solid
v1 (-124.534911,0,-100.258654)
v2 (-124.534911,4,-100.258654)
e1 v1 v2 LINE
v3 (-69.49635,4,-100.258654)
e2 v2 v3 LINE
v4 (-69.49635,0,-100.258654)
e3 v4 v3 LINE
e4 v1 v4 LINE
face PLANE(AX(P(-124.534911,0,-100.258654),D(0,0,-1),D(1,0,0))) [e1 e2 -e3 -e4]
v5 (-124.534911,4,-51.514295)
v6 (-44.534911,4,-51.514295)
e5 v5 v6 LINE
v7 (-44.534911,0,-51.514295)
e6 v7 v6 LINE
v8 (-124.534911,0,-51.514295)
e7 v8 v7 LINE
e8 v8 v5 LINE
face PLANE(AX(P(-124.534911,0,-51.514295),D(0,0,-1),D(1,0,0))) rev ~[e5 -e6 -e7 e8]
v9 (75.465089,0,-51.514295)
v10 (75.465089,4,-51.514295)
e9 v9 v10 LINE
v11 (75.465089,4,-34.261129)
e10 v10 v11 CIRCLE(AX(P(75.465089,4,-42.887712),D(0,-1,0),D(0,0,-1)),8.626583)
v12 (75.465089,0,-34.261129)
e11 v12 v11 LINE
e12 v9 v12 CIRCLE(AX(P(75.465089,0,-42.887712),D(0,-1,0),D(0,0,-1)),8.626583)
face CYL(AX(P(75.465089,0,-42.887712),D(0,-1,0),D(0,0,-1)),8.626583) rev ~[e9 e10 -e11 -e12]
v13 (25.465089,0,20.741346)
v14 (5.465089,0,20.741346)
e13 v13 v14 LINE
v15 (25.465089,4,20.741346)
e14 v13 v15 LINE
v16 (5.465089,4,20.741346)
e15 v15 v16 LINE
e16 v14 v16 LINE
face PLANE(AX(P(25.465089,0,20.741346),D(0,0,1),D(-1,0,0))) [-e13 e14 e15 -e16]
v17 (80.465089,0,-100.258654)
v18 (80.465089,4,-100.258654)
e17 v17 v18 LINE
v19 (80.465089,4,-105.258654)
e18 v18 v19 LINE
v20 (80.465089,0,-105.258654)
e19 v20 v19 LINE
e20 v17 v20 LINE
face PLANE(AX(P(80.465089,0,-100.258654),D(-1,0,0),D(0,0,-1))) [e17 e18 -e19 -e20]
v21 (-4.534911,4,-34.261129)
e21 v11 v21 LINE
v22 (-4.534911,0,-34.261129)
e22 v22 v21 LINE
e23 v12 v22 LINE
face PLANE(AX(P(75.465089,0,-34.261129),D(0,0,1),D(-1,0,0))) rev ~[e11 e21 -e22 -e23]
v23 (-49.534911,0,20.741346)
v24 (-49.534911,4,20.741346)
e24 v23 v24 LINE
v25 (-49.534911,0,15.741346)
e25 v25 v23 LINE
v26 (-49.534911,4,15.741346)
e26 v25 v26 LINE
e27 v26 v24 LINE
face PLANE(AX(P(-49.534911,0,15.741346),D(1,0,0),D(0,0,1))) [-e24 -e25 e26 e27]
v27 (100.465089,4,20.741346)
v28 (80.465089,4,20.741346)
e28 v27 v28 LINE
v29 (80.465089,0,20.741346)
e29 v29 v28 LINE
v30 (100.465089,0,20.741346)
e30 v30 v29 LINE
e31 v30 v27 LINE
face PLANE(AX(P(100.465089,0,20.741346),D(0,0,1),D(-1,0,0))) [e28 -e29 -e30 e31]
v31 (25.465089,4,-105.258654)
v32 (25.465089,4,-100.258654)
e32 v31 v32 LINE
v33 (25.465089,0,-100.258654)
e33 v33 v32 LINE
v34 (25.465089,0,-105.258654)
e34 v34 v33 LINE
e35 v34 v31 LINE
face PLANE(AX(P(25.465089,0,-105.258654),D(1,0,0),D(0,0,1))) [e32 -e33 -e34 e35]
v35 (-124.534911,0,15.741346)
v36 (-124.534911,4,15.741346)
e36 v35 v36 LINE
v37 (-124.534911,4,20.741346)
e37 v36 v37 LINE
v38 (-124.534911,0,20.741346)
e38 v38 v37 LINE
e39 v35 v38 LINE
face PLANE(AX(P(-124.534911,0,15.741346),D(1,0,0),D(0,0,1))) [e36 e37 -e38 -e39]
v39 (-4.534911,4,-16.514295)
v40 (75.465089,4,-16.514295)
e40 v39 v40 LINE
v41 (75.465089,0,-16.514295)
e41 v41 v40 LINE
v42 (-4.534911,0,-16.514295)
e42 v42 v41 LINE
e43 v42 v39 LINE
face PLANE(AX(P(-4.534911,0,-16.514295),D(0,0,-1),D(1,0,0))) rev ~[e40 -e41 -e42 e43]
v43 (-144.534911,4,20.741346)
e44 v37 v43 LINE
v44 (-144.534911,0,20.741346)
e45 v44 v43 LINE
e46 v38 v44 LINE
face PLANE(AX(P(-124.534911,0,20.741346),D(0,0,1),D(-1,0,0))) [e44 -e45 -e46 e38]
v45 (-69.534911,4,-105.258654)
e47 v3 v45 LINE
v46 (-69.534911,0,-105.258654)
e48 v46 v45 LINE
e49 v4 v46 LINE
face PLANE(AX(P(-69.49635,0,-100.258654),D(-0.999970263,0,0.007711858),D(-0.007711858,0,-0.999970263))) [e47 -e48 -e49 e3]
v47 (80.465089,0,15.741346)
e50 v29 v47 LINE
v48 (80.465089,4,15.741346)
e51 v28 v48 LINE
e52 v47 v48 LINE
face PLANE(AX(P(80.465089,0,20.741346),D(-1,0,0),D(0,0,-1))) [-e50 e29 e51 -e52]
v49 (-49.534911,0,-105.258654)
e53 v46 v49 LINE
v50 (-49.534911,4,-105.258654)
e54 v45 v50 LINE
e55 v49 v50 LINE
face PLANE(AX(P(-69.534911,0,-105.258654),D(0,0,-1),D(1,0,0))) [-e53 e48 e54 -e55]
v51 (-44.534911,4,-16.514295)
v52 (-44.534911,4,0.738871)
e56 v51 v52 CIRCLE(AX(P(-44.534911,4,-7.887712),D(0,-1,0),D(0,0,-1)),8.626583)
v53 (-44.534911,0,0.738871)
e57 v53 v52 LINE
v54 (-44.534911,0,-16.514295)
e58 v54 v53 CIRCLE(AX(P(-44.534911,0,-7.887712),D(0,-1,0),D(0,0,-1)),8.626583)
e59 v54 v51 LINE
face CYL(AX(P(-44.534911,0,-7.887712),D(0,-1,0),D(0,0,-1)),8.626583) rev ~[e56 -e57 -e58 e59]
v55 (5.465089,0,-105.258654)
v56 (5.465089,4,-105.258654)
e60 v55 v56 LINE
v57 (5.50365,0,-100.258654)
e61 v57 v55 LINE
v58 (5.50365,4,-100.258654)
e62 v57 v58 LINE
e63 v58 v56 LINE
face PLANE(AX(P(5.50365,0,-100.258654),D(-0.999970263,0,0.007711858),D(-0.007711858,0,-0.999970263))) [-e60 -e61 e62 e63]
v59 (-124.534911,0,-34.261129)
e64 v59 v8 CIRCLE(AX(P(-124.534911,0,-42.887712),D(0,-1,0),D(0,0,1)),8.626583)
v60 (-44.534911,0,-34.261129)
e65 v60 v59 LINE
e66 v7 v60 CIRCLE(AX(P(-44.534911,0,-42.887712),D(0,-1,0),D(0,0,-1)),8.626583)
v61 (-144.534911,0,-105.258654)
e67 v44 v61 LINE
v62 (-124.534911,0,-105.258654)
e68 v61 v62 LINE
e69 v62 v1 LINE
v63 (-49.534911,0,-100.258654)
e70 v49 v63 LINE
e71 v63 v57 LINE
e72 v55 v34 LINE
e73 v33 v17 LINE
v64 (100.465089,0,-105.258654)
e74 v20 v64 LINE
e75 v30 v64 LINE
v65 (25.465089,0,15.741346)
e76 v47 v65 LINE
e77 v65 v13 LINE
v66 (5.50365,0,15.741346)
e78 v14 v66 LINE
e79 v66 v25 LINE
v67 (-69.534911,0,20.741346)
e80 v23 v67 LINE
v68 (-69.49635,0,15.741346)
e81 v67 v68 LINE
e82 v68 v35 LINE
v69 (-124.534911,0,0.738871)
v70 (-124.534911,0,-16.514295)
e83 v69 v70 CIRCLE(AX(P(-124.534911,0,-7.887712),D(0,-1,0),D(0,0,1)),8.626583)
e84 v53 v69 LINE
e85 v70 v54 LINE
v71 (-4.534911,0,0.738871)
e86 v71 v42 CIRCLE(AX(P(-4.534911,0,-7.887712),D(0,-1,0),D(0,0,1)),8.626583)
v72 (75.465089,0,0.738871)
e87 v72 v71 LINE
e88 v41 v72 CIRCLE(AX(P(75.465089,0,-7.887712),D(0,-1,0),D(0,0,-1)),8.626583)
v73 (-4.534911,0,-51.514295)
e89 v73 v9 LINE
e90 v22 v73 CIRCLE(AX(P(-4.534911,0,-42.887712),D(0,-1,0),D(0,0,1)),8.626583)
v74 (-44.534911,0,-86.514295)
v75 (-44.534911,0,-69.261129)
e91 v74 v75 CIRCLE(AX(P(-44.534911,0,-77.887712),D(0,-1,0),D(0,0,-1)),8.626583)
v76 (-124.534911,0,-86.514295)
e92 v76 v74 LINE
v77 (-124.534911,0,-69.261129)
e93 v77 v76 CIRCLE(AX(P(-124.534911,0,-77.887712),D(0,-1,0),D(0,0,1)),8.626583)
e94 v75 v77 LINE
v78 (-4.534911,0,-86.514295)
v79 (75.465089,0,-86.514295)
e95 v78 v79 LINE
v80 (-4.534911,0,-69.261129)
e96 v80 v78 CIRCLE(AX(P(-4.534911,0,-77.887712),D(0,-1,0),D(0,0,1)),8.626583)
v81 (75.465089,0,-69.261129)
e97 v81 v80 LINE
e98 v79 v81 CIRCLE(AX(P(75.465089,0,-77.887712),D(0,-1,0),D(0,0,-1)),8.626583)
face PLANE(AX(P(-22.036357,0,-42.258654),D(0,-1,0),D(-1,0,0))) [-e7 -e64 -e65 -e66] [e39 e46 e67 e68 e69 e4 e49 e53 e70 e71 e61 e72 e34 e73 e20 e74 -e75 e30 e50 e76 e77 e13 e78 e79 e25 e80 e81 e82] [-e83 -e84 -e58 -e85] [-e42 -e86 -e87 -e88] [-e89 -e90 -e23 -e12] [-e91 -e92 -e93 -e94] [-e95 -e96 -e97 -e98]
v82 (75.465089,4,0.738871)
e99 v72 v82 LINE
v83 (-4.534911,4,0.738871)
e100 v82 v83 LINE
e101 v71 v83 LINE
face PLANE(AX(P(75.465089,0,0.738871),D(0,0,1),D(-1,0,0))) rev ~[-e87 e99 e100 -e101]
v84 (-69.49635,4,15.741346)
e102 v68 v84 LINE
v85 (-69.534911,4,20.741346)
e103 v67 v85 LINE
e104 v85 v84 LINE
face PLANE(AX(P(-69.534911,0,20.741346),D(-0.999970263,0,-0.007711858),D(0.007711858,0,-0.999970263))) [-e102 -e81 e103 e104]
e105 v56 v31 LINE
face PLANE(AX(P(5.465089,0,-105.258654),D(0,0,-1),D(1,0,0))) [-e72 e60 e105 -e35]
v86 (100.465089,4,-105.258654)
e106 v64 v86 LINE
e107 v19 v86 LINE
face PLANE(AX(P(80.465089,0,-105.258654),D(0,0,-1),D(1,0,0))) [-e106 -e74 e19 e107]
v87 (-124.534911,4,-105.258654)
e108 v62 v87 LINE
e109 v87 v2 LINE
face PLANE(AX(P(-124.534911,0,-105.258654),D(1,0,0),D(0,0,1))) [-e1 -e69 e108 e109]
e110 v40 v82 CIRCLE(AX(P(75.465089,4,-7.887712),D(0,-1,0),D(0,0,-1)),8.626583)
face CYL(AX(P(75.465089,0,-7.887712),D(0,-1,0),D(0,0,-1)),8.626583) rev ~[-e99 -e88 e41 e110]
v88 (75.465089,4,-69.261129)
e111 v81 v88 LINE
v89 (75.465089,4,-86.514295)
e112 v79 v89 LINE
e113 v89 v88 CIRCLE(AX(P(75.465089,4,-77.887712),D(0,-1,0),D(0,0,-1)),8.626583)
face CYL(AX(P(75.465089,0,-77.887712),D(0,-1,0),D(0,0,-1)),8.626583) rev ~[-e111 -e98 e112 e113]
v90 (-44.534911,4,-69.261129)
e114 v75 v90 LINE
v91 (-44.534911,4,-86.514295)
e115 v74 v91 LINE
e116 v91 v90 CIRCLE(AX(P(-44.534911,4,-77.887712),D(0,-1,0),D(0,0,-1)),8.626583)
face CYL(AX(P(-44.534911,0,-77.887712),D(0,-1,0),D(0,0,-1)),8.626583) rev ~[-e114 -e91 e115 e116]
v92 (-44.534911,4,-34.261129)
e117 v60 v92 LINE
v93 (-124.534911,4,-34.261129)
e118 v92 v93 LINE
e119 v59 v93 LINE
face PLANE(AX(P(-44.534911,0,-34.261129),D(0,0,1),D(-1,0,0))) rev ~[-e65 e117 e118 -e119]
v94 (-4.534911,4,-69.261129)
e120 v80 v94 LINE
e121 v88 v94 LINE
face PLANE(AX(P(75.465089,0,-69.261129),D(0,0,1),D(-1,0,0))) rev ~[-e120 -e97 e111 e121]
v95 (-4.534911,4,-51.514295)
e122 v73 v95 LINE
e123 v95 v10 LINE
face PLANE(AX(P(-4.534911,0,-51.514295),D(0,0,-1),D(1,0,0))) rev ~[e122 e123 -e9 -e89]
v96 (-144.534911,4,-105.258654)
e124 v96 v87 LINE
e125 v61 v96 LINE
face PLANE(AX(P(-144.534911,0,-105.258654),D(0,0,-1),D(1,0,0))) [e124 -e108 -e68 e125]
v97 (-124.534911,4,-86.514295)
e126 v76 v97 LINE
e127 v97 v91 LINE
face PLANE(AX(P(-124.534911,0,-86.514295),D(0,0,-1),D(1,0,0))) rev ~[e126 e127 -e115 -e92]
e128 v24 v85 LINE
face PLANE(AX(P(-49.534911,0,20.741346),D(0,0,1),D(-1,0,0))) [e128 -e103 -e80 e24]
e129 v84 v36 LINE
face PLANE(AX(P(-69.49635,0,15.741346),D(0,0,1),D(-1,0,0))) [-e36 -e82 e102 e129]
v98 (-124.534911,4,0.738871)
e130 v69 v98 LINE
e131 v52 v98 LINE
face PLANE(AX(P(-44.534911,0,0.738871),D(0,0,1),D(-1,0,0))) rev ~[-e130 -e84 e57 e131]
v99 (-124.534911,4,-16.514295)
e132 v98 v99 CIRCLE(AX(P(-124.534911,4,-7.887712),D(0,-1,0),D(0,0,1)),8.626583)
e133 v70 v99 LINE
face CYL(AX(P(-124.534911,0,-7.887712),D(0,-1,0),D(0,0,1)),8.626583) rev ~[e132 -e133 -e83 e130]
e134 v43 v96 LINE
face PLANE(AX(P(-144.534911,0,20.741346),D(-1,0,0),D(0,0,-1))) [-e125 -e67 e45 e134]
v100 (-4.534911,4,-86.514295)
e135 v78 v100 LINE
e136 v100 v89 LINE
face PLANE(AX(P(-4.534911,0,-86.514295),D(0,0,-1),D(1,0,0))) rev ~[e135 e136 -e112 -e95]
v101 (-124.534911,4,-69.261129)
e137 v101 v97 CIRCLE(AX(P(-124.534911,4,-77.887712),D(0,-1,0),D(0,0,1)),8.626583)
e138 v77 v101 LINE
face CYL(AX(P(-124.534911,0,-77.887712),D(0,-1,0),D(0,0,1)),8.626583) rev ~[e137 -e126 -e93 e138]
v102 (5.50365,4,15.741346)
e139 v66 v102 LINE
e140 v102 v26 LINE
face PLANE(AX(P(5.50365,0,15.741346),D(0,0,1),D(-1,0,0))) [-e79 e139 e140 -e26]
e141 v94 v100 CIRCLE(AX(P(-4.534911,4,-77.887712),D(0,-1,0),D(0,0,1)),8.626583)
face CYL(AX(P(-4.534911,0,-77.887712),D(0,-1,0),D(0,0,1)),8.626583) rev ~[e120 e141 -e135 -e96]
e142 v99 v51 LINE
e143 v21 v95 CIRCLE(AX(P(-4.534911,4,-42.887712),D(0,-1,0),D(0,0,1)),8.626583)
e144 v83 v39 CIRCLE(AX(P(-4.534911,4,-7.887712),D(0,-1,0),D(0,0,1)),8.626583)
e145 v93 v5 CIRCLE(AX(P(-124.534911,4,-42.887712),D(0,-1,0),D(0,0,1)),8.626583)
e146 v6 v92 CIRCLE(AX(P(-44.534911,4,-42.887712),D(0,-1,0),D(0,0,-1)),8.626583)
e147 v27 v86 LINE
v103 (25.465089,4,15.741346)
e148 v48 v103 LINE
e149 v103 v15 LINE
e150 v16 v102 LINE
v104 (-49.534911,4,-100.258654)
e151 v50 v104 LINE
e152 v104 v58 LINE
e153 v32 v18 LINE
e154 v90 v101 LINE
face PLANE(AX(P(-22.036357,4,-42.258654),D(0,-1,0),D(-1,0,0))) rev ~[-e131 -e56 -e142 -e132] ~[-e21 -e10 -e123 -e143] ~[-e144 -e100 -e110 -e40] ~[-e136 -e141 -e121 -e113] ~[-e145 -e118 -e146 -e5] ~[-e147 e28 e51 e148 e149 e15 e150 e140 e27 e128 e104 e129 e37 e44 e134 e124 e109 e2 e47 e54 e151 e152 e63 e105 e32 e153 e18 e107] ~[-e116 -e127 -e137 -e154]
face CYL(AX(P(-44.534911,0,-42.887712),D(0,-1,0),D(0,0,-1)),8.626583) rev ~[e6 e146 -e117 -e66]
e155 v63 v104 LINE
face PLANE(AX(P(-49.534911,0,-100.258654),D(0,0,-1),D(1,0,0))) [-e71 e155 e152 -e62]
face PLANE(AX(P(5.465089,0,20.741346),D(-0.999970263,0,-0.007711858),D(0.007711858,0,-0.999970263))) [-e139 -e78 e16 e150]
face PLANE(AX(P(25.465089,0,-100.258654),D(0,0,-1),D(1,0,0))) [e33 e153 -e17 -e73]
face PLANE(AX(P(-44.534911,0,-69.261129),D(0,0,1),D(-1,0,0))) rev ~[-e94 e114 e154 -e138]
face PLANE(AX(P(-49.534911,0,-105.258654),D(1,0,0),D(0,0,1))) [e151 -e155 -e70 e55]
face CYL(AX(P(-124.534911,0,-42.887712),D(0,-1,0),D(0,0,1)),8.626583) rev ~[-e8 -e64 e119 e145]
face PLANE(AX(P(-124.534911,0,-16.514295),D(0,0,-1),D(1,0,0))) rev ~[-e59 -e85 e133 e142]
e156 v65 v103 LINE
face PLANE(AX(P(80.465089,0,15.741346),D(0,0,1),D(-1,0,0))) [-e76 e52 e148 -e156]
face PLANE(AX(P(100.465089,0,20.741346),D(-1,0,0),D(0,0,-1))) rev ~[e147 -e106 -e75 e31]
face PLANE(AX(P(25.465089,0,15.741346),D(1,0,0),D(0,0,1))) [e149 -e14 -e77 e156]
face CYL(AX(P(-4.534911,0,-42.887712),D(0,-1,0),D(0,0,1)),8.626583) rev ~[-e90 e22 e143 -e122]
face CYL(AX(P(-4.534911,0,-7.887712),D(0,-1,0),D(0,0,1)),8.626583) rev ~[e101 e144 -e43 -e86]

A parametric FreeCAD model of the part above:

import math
import FreeCAD as App
import Part
import Sketcher
from FreeCAD import Vector
Q = App.Units.Quantity


def add_polygon(sketch, points):
    """Adds a closed chain of lines whose ends are joined by coincident constraints."""
    first, n = sketch.GeometryCount, len(points)
    for a, b in zip(points, points[1:] + points[:1]):
        sketch.addGeometry(Part.LineSegment(App.Vector(*a, 0), App.Vector(*b, 0)), False)
    for i in range(n):
        sketch.addConstraint(Sketcher.Constraint("Coincident", first + i, 2, first + (i + 1) % n, 1))

doc = App.newDocument("Part")
body = doc.addObject("PartDesign::Body", "Body")

# Sketch on XZ plane
sketch1 = body.newObject("Sketcher::SketchObject", "Sketch")
sketch1.AttachmentSupport = (doc.getObject("XZ_Plane"), [""])
sketch1.MapMode = "FlatFace"
add_polygon(sketch1, [(-49.534911, -105.258654), (-69.534911, -105.258654), (-69.49635, -100.258654), (-124.534911, -100.258654), (-124.534911, -105.258654), (-144.534911, -105.258654), (-144.534911, 20.741346), (-124.534911, 20.741346), (-124.534911, 15.741346), (-69.49635, 15.741346), (-69.534911, 20.741346), (-49.534911, 20.741346), (-49.534911, 15.741346), (5.50365, 15.741346), (5.465089, 20.741346), (25.465089, 20.741346), (25.465089, 15.741346), (80.465089, 15.741346), (80.465089, 20.741346), (100.465089, 20.741346), (100.465089, -105.258654), (80.465089, -105.258654), (80.465089, -100.258654), (25.465089, -100.258654), (25.465089, -105.258654), (5.465089, -105.258654), (5.50365, -100.258654), (-49.534911, -100.258654)])  # lines 0-27
sketch1.addGeometry(Part.LineSegment(Vector(-4.534911, -16.514295, 0), Vector(75.465089, -16.514295, 0)), False)  # 28
sketch1.addGeometry(Part.ArcOfCircle(Part.Circle(Vector(75.465089, -7.887712, 0), Vector(0, 0, 1), 8.626583), math.radians(-90), math.radians(90)), False)  # 29
sketch1.addGeometry(Part.LineSegment(Vector(75.465089, 0.738871, 0), Vector(-4.534911, 0.738871, 0)), False)  # 30
sketch1.addGeometry(Part.ArcOfCircle(Part.Circle(Vector(-4.534911, -7.887712, 0), Vector(0, 0, 1), 8.626583), math.radians(90), math.radians(270)), False)  # 31
sketch1.addGeometry(Part.LineSegment(Vector(-124.534911, -16.514295, 0), Vector(-44.534911, -16.514295, 0)), False)  # 32
sketch1.addGeometry(Part.ArcOfCircle(Part.Circle(Vector(-44.534911, -7.887712, 0), Vector(0, 0, 1), 8.626583), math.radians(-90), math.radians(90)), False)  # 33
sketch1.addGeometry(Part.LineSegment(Vector(-44.534911, 0.738871, 0), Vector(-124.534911, 0.738871, 0)), False)  # 34
sketch1.addGeometry(Part.ArcOfCircle(Part.Circle(Vector(-124.534911, -7.887712, 0), Vector(0, 0, 1), 8.626583), math.radians(90), math.radians(270)), False)  # 35
sketch1.addGeometry(Part.LineSegment(Vector(-4.534911, -51.514295, 0), Vector(75.465089, -51.514295, 0)), False)  # 36
sketch1.addGeometry(Part.ArcOfCircle(Part.Circle(Vector(75.465089, -42.887712, 0), Vector(0, 0, 1), 8.626583), math.radians(-90), math.radians(90)), False)  # 37
sketch1.addGeometry(Part.LineSegment(Vector(75.465089, -34.261129, 0), Vector(-4.534911, -34.261129, 0)), False)  # 38
sketch1.addGeometry(Part.ArcOfCircle(Part.Circle(Vector(-4.534911, -42.887712, 0), Vector(0, 0, 1), 8.626583), math.radians(90), math.radians(270)), False)  # 39
sketch1.addGeometry(Part.LineSegment(Vector(-4.534911, -86.514295, 0), Vector(75.465089, -86.514295, 0)), False)  # 40
sketch1.addGeometry(Part.ArcOfCircle(Part.Circle(Vector(75.465089, -77.887712, 0), Vector(0, 0, 1), 8.626583), math.radians(-90), math.radians(90)), False)  # 41
sketch1.addGeometry(Part.LineSegment(Vector(75.465089, -69.261129, 0), Vector(-4.534911, -69.261129, 0)), False)  # 42
sketch1.addGeometry(Part.ArcOfCircle(Part.Circle(Vector(-4.534911, -77.887712, 0), Vector(0, 0, 1), 8.626583), math.radians(90), math.radians(270)), False)  # 43
sketch1.addGeometry(Part.LineSegment(Vector(-124.534911, -51.514295, 0), Vector(-44.534911, -51.514295, 0)), False)  # 44
sketch1.addGeometry(Part.ArcOfCircle(Part.Circle(Vector(-44.534911, -42.887712, 0), Vector(0, 0, 1), 8.626583), math.radians(-90), math.radians(90)), False)  # 45
sketch1.addGeometry(Part.LineSegment(Vector(-44.534911, -34.261129, 0), Vector(-124.534911, -34.261129, 0)), False)  # 46
sketch1.addGeometry(Part.ArcOfCircle(Part.Circle(Vector(-124.534911, -42.887712, 0), Vector(0, 0, 1), 8.626583), math.radians(90), math.radians(270)), False)  # 47
sketch1.addGeometry(Part.LineSegment(Vector(-124.534911, -86.514295, 0), Vector(-44.534911, -86.514295, 0)), False)  # 48
sketch1.addGeometry(Part.ArcOfCircle(Part.Circle(Vector(-44.534911, -77.887712, 0), Vector(0, 0, 1), 8.626583), math.radians(-90), math.radians(90)), False)  # 49
sketch1.addGeometry(Part.LineSegment(Vector(-44.534911, -69.261129, 0), Vector(-124.534911, -69.261129, 0)), False)  # 50
sketch1.addGeometry(Part.ArcOfCircle(Part.Circle(Vector(-124.534911, -77.887712, 0), Vector(0, 0, 1), 8.626583), math.radians(90), math.radians(270)), False)  # 51
sketch1.addConstraint([
    Sketcher.Constraint("Tangent", 28, 2, 29, 1),
    Sketcher.Constraint("Tangent", 29, 2, 30, 1),
    Sketcher.Constraint("Tangent", 30, 2, 31, 1),
    Sketcher.Constraint("Tangent", 31, 2, 28, 1),
    Sketcher.Constraint("Tangent", 32, 2, 33, 1),
    Sketcher.Constraint("Tangent", 33, 2, 34, 1),
    Sketcher.Constraint("Tangent", 34, 2, 35, 1),
    Sketcher.Constraint("Tangent", 35, 2, 32, 1),
    Sketcher.Constraint("Tangent", 36, 2, 37, 1),
    Sketcher.Constraint("Tangent", 37, 2, 38, 1),
    Sketcher.Constraint("Tangent", 38, 2, 39, 1),
    Sketcher.Constraint("Tangent", 39, 2, 36, 1),
    Sketcher.Constraint("Tangent", 40, 2, 41, 1),
    Sketcher.Constraint("Tangent", 41, 2, 42, 1),
    Sketcher.Constraint("Tangent", 42, 2, 43, 1),
    Sketcher.Constraint("Tangent", 43, 2, 40, 1),
    Sketcher.Constraint("Tangent", 44, 2, 45, 1),
    Sketcher.Constraint("Tangent", 45, 2, 46, 1),
    Sketcher.Constraint("Tangent", 46, 2, 47, 1),
    Sketcher.Constraint("Tangent", 47, 2, 44, 1),
    Sketcher.Constraint("Tangent", 48, 2, 49, 1),
    Sketcher.Constraint("Tangent", 49, 2, 50, 1),
    Sketcher.Constraint("Tangent", 50, 2, 51, 1),
    Sketcher.Constraint("Tangent", 51, 2, 48, 1),
    Sketcher.Constraint("Horizontal", 0),
    Sketcher.Constraint("Horizontal", 2),
    Sketcher.Constraint("Vertical", 3),
    Sketcher.Constraint("Horizontal", 4),
    Sketcher.Constraint("Vertical", 5),
    Sketcher.Constraint("Horizontal", 6),
    Sketcher.Constraint("Vertical", 7),
    Sketcher.Constraint("Horizontal", 8),
    Sketcher.Constraint("Horizontal", 10),
    Sketcher.Constraint("Vertical", 11),
    Sketcher.Constraint("Horizontal", 12),
    Sketcher.Constraint("Horizontal", 14),
    Sketcher.Constraint("Vertical", 15),
    Sketcher.Constraint("Horizontal", 16),
    Sketcher.Constraint("Vertical", 17),
    Sketcher.Constraint("Horizontal", 18),
    Sketcher.Constraint("Vertical", 19),
    Sketcher.Constraint("Horizontal", 20),
    Sketcher.Constraint("Vertical", 21),
    Sketcher.Constraint("Horizontal", 22),
    Sketcher.Constraint("Vertical", 23),
    Sketcher.Constraint("Horizontal", 24),
    Sketcher.Constraint("Horizontal", 26),
    Sketcher.Constraint("Vertical", 27),
    Sketcher.Constraint("Horizontal", 28),
    Sketcher.Constraint("Horizontal", 30),
    Sketcher.Constraint("Horizontal", 32),
    Sketcher.Constraint("Horizontal", 34),
    Sketcher.Constraint("Horizontal", 36),
    Sketcher.Constraint("Horizontal", 38),
    Sketcher.Constraint("Horizontal", 40),
    Sketcher.Constraint("Horizontal", 42),
    Sketcher.Constraint("Horizontal", 44),
    Sketcher.Constraint("Horizontal", 46),
    Sketcher.Constraint("Horizontal", 48),
    Sketcher.Constraint("Horizontal", 50),
    Sketcher.Constraint("Equal", 31, 33),
    Sketcher.Constraint("Equal", 35, 37),
    Sketcher.Constraint("Equal", 39, 41),
    Sketcher.Constraint("Equal", 43, 45),
    Sketcher.Constraint("Equal", 47, 49),
    Sketcher.Constraint("Parallel", 9, 13),
    Sketcher.Constraint("Parallel", 1, 25),
    Sketcher.Constraint("Horizontal", 31, 3, 33, 3),
    Sketcher.Constraint("Horizontal", 39, 3, 45, 3),
    Sketcher.Constraint("Horizontal", 43, 3, 49, 3),
    Sketcher.Constraint("Horizontal", 0, 2, 3, 2),
    Sketcher.Constraint("Horizontal", 6, 2, 9, 2),
    Sketcher.Constraint("Horizontal", 8, 2, 11, 2),
    Sketcher.Constraint("Horizontal", 10, 2, 13, 2),
    Sketcher.Constraint("Horizontal", 12, 2, 15, 2),
    Sketcher.Constraint("Horizontal", 14, 2, 17, 2),
    Sketcher.Constraint("Horizontal", 4, 2, 19, 2),
    Sketcher.Constraint("Horizontal", 2, 2, 21, 2),
    Sketcher.Constraint("Horizontal", 20, 2, 23, 2),
    Sketcher.Constraint("Horizontal", 22, 2, 25, 2),
    Sketcher.Constraint("Vertical", 29, 3, 37, 3),
    Sketcher.Constraint("Vertical", 31, 3, 39, 3),
    Sketcher.Constraint("Vertical", 37, 3, 41, 3),
    Sketcher.Constraint("Vertical", 39, 3, 43, 3),
    Sketcher.Constraint("Vertical", 33, 3, 45, 3),
    Sketcher.Constraint("Vertical", 35, 3, 47, 3),
    Sketcher.Constraint("Vertical", 45, 3, 49, 3),
    Sketcher.Constraint("Vertical", 47, 3, 51, 3),
    Sketcher.Constraint("Vertical", 51, 3, 2, 2),
    Sketcher.Constraint("Vertical", 3, 2, 6, 2),
    Sketcher.Constraint("Vertical", 1, 2, 8, 2),
    Sketcher.Constraint("Vertical", 0, 2, 9, 2),
    Sketcher.Constraint("Vertical", 17, 2, 20, 2),
    Sketcher.Constraint("Vertical", 15, 2, 22, 2),
    Sketcher.Constraint("Vertical", 13, 2, 24, 2),
    Sketcher.Constraint("Vertical", 11, 2, 26, 2),
    Sketcher.Constraint("Equal", 0, 4),
    Sketcher.Constraint("Equal", 8, 12),
    Sketcher.Constraint("Equal", 10, 14),
    Sketcher.Constraint("Equal", 14, 18),
    Sketcher.Constraint("Equal", 30, 32),
    Sketcher.Constraint("Equal", 3, 7),
    Sketcher.Constraint("DistanceX", 0, 2, 0, 1, Q("20 mm")),
    Sketcher.Constraint("DistanceX", 16, 1, 16, 2, Q("55 mm")),
    Sketcher.Constraint("DistanceX", 28, 1, 28, 2, Q("80 mm")),
    Sketcher.Constraint("DistanceY", 3, 2, 3, 1, Q("5 mm")),
    Sketcher.Constraint("DistanceY", 5, 1, 5, 2, Q("126 mm")),
    Sketcher.Constraint("Radius", 29, Q("8.626583 mm")),
    Sketcher.Constraint("DistanceX", 2, 2, 2, 1, Q("55.03856 mm")),
    Sketcher.Constraint("DistanceX", -1, 1, 29, 3, Q("75.465089 mm")),
    Sketcher.Constraint("DistanceY", 29, 3, -1, 1, Q("7.887712 mm")),
    Sketcher.Constraint("DistanceX", 33, 3, -1, 1, Q("44.534911 mm")),
    Sketcher.Constraint("DistanceY", 37, 3, -1, 1, Q("42.887712 mm")),
    Sketcher.Constraint("DistanceY", 41, 3, -1, 1, Q("77.887712 mm")),
    Sketcher.Constraint("DistanceX", 0, 2, -1, 1, Q("69.534911 mm")),
    Sketcher.Constraint("DistanceY", 0, 2, -1, 1, Q("105.258654 mm")),
])
pad1 = body.newObject("PartDesign::Pad", "Pad")
pad1.Profile = sketch1
pad1.Length = 4
pad1.Reversed = True

doc.recompute()
